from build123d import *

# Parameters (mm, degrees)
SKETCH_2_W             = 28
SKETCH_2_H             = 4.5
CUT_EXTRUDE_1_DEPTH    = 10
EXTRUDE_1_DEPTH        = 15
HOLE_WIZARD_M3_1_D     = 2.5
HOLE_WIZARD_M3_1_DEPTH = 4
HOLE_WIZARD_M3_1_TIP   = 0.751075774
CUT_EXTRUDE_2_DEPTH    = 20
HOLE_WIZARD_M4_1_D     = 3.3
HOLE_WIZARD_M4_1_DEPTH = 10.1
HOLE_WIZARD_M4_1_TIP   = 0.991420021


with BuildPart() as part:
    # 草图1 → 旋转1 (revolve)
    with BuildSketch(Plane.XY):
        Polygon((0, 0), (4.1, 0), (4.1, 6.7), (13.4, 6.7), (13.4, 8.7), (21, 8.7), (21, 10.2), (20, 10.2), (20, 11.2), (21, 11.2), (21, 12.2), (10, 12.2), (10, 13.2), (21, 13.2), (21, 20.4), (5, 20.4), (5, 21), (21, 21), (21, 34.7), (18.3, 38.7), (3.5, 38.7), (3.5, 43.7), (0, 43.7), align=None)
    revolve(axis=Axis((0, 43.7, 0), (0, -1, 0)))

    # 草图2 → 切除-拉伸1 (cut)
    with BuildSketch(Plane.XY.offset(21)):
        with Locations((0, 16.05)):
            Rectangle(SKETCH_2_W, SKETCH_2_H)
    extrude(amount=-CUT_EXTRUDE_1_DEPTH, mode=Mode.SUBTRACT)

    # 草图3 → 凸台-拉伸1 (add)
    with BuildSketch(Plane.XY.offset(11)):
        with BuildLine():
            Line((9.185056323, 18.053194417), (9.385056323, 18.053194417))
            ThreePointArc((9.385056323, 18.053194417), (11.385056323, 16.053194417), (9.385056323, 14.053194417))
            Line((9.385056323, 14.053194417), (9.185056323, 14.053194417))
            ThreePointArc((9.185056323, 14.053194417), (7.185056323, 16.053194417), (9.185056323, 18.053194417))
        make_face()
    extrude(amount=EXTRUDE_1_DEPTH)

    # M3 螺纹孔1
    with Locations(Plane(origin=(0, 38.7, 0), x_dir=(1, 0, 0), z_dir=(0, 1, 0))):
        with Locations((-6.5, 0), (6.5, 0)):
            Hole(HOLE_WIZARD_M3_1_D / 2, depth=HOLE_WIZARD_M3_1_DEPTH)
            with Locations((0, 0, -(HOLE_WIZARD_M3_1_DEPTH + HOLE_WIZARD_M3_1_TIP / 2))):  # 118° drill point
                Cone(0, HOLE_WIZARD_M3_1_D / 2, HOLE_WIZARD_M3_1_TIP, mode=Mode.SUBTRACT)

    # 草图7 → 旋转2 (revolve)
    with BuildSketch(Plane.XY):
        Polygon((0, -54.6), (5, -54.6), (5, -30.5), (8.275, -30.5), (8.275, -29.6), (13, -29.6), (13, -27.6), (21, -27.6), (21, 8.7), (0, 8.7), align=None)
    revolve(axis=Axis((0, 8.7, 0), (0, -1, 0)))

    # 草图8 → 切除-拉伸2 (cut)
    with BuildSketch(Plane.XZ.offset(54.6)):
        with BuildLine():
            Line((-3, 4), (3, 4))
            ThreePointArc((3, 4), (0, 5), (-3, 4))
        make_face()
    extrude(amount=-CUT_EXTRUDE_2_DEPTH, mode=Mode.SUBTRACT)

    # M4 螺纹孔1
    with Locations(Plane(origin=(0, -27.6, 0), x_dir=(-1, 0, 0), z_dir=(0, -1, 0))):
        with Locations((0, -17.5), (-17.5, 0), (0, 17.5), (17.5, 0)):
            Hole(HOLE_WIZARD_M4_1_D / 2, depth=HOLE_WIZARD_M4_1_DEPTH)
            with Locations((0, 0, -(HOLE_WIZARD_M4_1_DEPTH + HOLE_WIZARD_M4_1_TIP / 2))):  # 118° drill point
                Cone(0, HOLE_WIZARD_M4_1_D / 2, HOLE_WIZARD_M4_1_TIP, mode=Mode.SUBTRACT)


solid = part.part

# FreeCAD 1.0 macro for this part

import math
import FreeCAD as App
import Part
import Sketcher

V = App.Vector
Q = App.Units.Quantity

doc = App.newDocument("Part")
body = doc.addObject("PartDesign::Body", "Body")

# Sketch on XY plane
sketch1 = body.newObject("Sketcher::SketchObject", "Sketch")
sketch1.AttachmentSupport = (doc.getObject("XY_Plane"), [""])
sketch1.MapMode = "FlatFace"
sketch1.addGeometry(Part.LineSegment(V(0, 0, 0), V(4.1, 0, 0)), False)
sketch1.addGeometry(Part.LineSegment(V(4.1, 0, 0), V(4.1, 6.7, 0)), False)
sketch1.addGeometry(Part.LineSegment(V(4.1, 6.7, 0), V(13.4, 6.7, 0)), False)
sketch1.addGeometry(Part.LineSegment(V(13.4, 6.7, 0), V(13.4, 8.7, 0)), False)
sketch1.addGeometry(Part.LineSegment(V(13.4, 8.7, 0), V(21, 8.7, 0)), False)
sketch1.addGeometry(Part.LineSegment(V(21, 8.7, 0), V(21, 10.2, 0)), False)
sketch1.addGeometry(Part.LineSegment(V(21, 10.2, 0), V(20, 10.2, 0)), False)
sketch1.addGeometry(Part.LineSegment(V(20, 10.2, 0), V(20, 11.2, 0)), False)
sketch1.addGeometry(Part.LineSegment(V(20, 11.2, 0), V(21, 11.2, 0)), False)
sketch1.addGeometry(Part.LineSegment(V(21, 11.2, 0), V(21, 12.2, 0)), False)
sketch1.addGeometry(Part.LineSegment(V(21, 12.2, 0), V(10, 12.2, 0)), False)
sketch1.addGeometry(Part.LineSegment(V(10, 12.2, 0), V(10, 13.2, 0)), False)
sketch1.addGeometry(Part.LineSegment(V(10, 13.2, 0), V(21, 13.2, 0)), False)
sketch1.addGeometry(Part.LineSegment(V(21, 13.2, 0), V(21, 20.4, 0)), False)
sketch1.addGeometry(Part.LineSegment(V(21, 20.4, 0), V(5, 20.4, 0)), False)
sketch1.addGeometry(Part.LineSegment(V(5, 20.4, 0), V(5, 21, 0)), False)
sketch1.addGeometry(Part.LineSegment(V(5, 21, 0), V(21, 21, 0)), False)
sketch1.addGeometry(Part.LineSegment(V(21, 21, 0), V(21, 34.7, 0)), False)
sketch1.addGeometry(Part.LineSegment(V(21, 34.7, 0), V(18.3, 38.7, 0)), False)
sketch1.addGeometry(Part.LineSegment(V(18.3, 38.7, 0), V(3.5, 38.7, 0)), False)
sketch1.addGeometry(Part.LineSegment(V(3.5, 38.7, 0), V(3.5, 43.7, 0)), False)
sketch1.addGeometry(Part.LineSegment(V(3.5, 43.7, 0), V(0, 43.7, 0)), False)
sketch1.addGeometry(Part.LineSegment(V(0, 43.7, 0), V(0, 0, 0)), False)
sketch1.addConstraint(Sketcher.Constraint("Coincident", 0, 2, 1, 1))
sketch1.addConstraint(Sketcher.Constraint("Coincident", 1, 2, 2, 1))
sketch1.addConstraint(Sketcher.Constraint("Coincident", 2, 2, 3, 1))
sketch1.addConstraint(Sketcher.Constraint("Coincident", 3, 2, 4, 1))
sketch1.addConstraint(Sketcher.Constraint("Coincident", 4, 2, 5, 1))
sketch1.addConstraint(Sketcher.Constraint("Coincident", 5, 2, 6, 1))
sketch1.addConstraint(Sketcher.Constraint("Coincident", 6, 2, 7, 1))
sketch1.addConstraint(Sketcher.Constraint("Coincident", 7, 2, 8, 1))
sketch1.addConstraint(Sketcher.Constraint("Coincident", 8, 2, 9, 1))
sketch1.addConstraint(Sketcher.Constraint("Coincident", 9, 2, 10, 1))
sketch1.addConstraint(Sketcher.Constraint("Coincident", 10, 2, 11, 1))
sketch1.addConstraint(Sketcher.Constraint("Coincident", 11, 2, 12, 1))
sketch1.addConstraint(Sketcher.Constraint("Coincident", 12, 2, 13, 1))
sketch1.addConstraint(Sketcher.Constraint("Coincident", 13, 2, 14, 1))
sketch1.addConstraint(Sketcher.Constraint("Coincident", 14, 2, 15, 1))
sketch1.addConstraint(Sketcher.Constraint("Coincident", 15, 2, 16, 1))
sketch1.addConstraint(Sketcher.Constraint("Coincident", 16, 2, 17, 1))
sketch1.addConstraint(Sketcher.Constraint("Coincident", 17, 2, 18, 1))
sketch1.addConstraint(Sketcher.Constraint("Coincident", 18, 2, 19, 1))
sketch1.addConstraint(Sketcher.Constraint("Coincident", 19, 2, 20, 1))
sketch1.addConstraint(Sketcher.Constraint("Coincident", 20, 2, 21, 1))
sketch1.addConstraint(Sketcher.Constraint("Coincident", 21, 2, 22, 1))
sketch1.addConstraint(Sketcher.Constraint("Coincident", 22, 2, 0, 1))
sketch1.addConstraint(Sketcher.Constraint("Horizontal", 0))
sketch1.addConstraint(Sketcher.Constraint("Vertical", 1))
sketch1.addConstraint(Sketcher.Constraint("Horizontal", 2))
sketch1.addConstraint(Sketcher.Constraint("Vertical", 3))
sketch1.addConstraint(Sketcher.Constraint("Horizontal", 4))
sketch1.addConstraint(Sketcher.Constraint("Vertical", 5))
sketch1.addConstraint(Sketcher.Constraint("Horizontal", 6))
sketch1.addConstraint(Sketcher.Constraint("Vertical", 7))
sketch1.addConstraint(Sketcher.Constraint("Horizontal", 8))
sketch1.addConstraint(Sketcher.Constraint("Vertical", 9))
sketch1.addConstraint(Sketcher.Constraint("Horizontal", 10))
sketch1.addConstraint(Sketcher.Constraint("Vertical", 11))
sketch1.addConstraint(Sketcher.Constraint("Horizontal", 12))
sketch1.addConstraint(Sketcher.Constraint("Vertical", 13))
sketch1.addConstraint(Sketcher.Constraint("Horizontal", 14))
sketch1.addConstraint(Sketcher.Constraint("Vertical", 15))
sketch1.addConstraint(Sketcher.Constraint("Horizontal", 16))
sketch1.addConstraint(Sketcher.Constraint("Vertical", 17))
sketch1.addConstraint(Sketcher.Constraint("Horizontal", 19))
sketch1.addConstraint(Sketcher.Constraint("Vertical", 20))
sketch1.addConstraint(Sketcher.Constraint("Horizontal", 21))
sketch1.addConstraint(Sketcher.Constraint("Vertical", 22))
sketch1.addConstraint(Sketcher.Constraint("Coincident", 22, 2, -1, 1))
sketch1.addConstraint(Sketcher.Constraint("Vertical", 5, 2, 8, 2))
sketch1.addConstraint(Sketcher.Constraint("Vertical", 9, 2, 12, 2))
sketch1.addConstraint(Sketcher.Constraint("Vertical", 13, 2, 16, 2))
sketch1.addConstraint(Sketcher.Constraint("Equal", 8, 7))
sketch1.addConstraint(Sketcher.Constraint("Equal", 7, 9))
sketch1.addConstraint(Sketcher.Constraint("Equal", 9, 11))
sketch1.addConstraint(Sketcher.Constraint("DistanceX", 6, 2, 6, 1, Q("1 mm")))
sketch1.addConstraint(Sketcher.Constraint("DistanceX", 10, 2, 10, 1, Q("11 mm")))
sketch1.addConstraint(Sketcher.Constraint("DistanceX", 14, 2, 14, 1, Q("16 mm")))
sketch1.addConstraint(Sketcher.Constraint("DistanceY", 3, 1, 3, 2, Q("2 mm")))
sketch1.addConstraint(Sketcher.Constraint("DistanceY", 20, 1, 20, 2, Q("5 mm")))
sketch1.addConstraint(Sketcher.Constraint("DistanceX", 0, 1, 0, 2, Q("4.1 mm")))
sketch1.addConstraint(Sketcher.Constraint("DistanceX", 2, 1, 2, 2, Q("9.3 mm")))
sketch1.addConstraint(Sketcher.Constraint("DistanceX", 4, 1, 4, 2, Q("7.6 mm")))
sketch1.addConstraint(Sketcher.Constraint("DistanceX", 19, 2, 19, 1, Q("14.8 mm")))
sketch1.addConstraint(Sketcher.Constraint("DistanceX", 21, 2, 21, 1, Q("3.5 mm")))
sketch1.addConstraint(Sketcher.Constraint("DistanceY", 1, 1, 1, 2, Q("6.7 mm")))
sketch1.addConstraint(Sketcher.Constraint("DistanceY", 5, 1, 5, 2, Q("1.5 mm")))
sketch1.addConstraint(Sketcher.Constraint("DistanceY", 13, 1, 13, 2, Q("7.2 mm")))
sketch1.addConstraint(Sketcher.Constraint("DistanceY", 15, 1, 15, 2, Q("0.6 mm")))
sketch1.addConstraint(Sketcher.Constraint("DistanceY", 17, 1, 17, 2, Q("13.7 mm")))
sketch1.addConstraint(Sketcher.Constraint("DistanceY", 22, 2, 22, 1, Q("43.7 mm")))
revolution = body.newObject("PartDesign::Revolution", "Revolution")
revolution.Profile = sketch1
revolution.ReferenceAxis = (sketch1, ["V_Axis"])
revolution.Angle = 360

# Sketch on XY plane
sketch2 = body.newObject("Sketcher::SketchObject", "Sketch001")
sketch2.AttachmentSupport = (doc.getObject("XY_Plane"), [""])
sketch2.MapMode = "FlatFace"
sketch2.AttachmentOffset = App.Placement(V(0, 0, 21), App.Rotation())
sketch2.addGeometry(Part.LineSegment(V(-14, 18.3, 0), V(-14, 13.8, 0)), False)
sketch2.addGeometry(Part.LineSegment(V(-14, 13.8, 0), V(14, 13.8, 0)), False)
sketch2.addGeometry(Part.LineSegment(V(14, 13.8, 0), V(14, 18.3, 0)), False)
sketch2.addGeometry(Part.LineSegment(V(14, 18.3, 0), V(-14, 18.3, 0)), False)
sketch2.addConstraint(Sketcher.Constraint("Coincident", 0, 2, 1, 1))
sketch2.addConstraint(Sketcher.Constraint("Coincident", 1, 2, 2, 1))
sketch2.addConstraint(Sketcher.Constraint("Coincident", 2, 2, 3, 1))
sketch2.addConstraint(Sketcher.Constraint("Coincident", 3, 2, 0, 1))
sketch2.addConstraint(Sketcher.Constraint("Vertical", 0))
sketch2.addConstraint(Sketcher.Constraint("Horizontal", 1))
sketch2.addConstraint(Sketcher.Constraint("Vertical", 2))
sketch2.addConstraint(Sketcher.Constraint("Horizontal", 3))
sketch2.addConstraint(Sketcher.Constraint("DistanceX", 1, 1, 1, 2, Q("28 mm")))
sketch2.addConstraint(Sketcher.Constraint("DistanceY", 0, 2, 0, 1, Q("4.5 mm")))
sketch2.addConstraint(Sketcher.Constraint("DistanceX", 0, 2, -1, 1, Q("14 mm")))
sketch2.addConstraint(Sketcher.Constraint("DistanceY", -1, 1, 0, 2, Q("13.8 mm")))
pocket1 = body.newObject("PartDesign::Pocket", "Pocket")
pocket1.Profile = sketch2
pocket1.Length = 10

# Sketch on XY plane
sketch3 = body.newObject("Sketcher::SketchObject", "Sketch002")
sketch3.AttachmentSupport = (doc.getObject("XY_Plane"), [""])
sketch3.MapMode = "FlatFace"
sketch3.AttachmentOffset = App.Placement(V(0, 0, 11), App.Rotation())
sketch3.addGeometry(Part.LineSegment(V(9.39, 18.05, 0), V(9.19, 18.05, 0)), False)
sketch3.addGeometry(Part.ArcOfCircle(Part.Circle(V(9.19, 16.05, 0), V(0, 0, 1), 2), math.radians(90), math.radians(270)), False)
sketch3.addGeometry(Part.LineSegment(V(9.19, 14.05, 0), V(9.39, 14.05, 0)), False)
sketch3.addGeometry(Part.ArcOfCircle(Part.Circle(V(9.39, 16.05, 0), V(0, 0, 1), 2), math.radians(-90), math.radians(90)), False)
sketch3.addConstraint(Sketcher.Constraint("Tangent", 0, 2, 1, 1))
sketch3.addConstraint(Sketcher.Constraint("Tangent", 1, 2, 2, 1))
sketch3.addConstraint(Sketcher.Constraint("Tangent", 2, 2, 3, 1))
sketch3.addConstraint(Sketcher.Constraint("Tangent", 3, 2, 0, 1))
sketch3.addConstraint(Sketcher.Constraint("Horizontal", 0))
sketch3.addConstraint(Sketcher.Constraint("Horizontal", 2))
sketch3.addConstraint(Sketcher.Constraint("Radius", 1, Q("2 mm")))
sketch3.addConstraint(Sketcher.Constraint("DistanceX", 0, 2, 0, 1, Q("0.2 mm")))
sketch3.addConstraint(Sketcher.Constraint("DistanceX", -1, 1, 1, 3, Q("9.185056 mm")))
sketch3.addConstraint(Sketcher.Constraint("DistanceY", -1, 1, 1, 3, Q("16.053194 mm")))
pad1 = body.newObject("PartDesign::Pad", "Pad")
pad1.Profile = sketch3
pad1.Length = 15

# Sketch on XZ plane
sketch4 = body.newObject("Sketcher::SketchObject", "Sketch003")
sketch4.AttachmentSupport = (doc.getObject("XZ_Plane"), [""])
sketch4.MapMode = "FlatFace"
sketch4.AttachmentOffset = App.Placement(V(0, 0, -38.7), App.Rotation())
sketch4.addGeometry(Part.Circle(V(-6.5, 0, 0), V(0, 0, 1), 1.2), False)
sketch4.addGeometry(Part.Circle(V(6.5, 0, 0), V(0, 0, 1), 1.2), False)
sketch4.addConstraint(Sketcher.Constraint("Equal", 0, 1))
sketch4.addConstraint(Sketcher.Constraint("Symmetric", 0, 3, 1, 3, -1, 1))
sketch4.addConstraint(Sketcher.Constraint("PointOnObject", 0, 3, -1))
sketch4.addConstraint(Sketcher.Constraint("Diameter", 0, Q("2.5 mm")))
sketch4.addConstraint(Sketcher.Constraint("DistanceX", 0, 3, 1, 3, Q("13 mm")))
doc.recompute()
hole = body.newObject("PartDesign::Hole", "Hole")
hole.Profile = sketch4
hole.ThreadType = "None"
hole.Diameter = 2.5
hole.DepthType = "Dimension"
hole.Depth = 4
hole.DrillPoint = "Angled"
hole.DrillPointAngle = 118
hole.Reversed = True

# Sketch on XY plane
sketch5 = body.newObject("Sketcher::SketchObject", "Sketch004")
sketch5.AttachmentSupport = (doc.getObject("XY_Plane"), [""])
sketch5.MapMode = "FlatFace"
sketch5.addGeometry(Part.LineSegment(V(0, -54.6, 0), V(5, -54.6, 0)), False)
sketch5.addGeometry(Part.LineSegment(V(5, -54.6, 0), V(5, -30.5, 0)), False)
sketch5.addGeometry(Part.LineSegment(V(5, -30.5, 0), V(8.3, -30.5, 0)), False)
sketch5.addGeometry(Part.LineSegment(V(8.3, -30.5, 0), V(8.3, -29.6, 0)), False)
sketch5.addGeometry(Part.LineSegment(V(8.3, -29.6, 0), V(13, -29.6, 0)), False)
sketch5.addGeometry(Part.LineSegment(V(13, -29.6, 0), V(13, -27.6, 0)), False)
sketch5.addGeometry(Part.LineSegment(V(13, -27.6, 0), V(21, -27.6, 0)), False)
sketch5.addGeometry(Part.LineSegment(V(21, -27.6, 0), V(21, 8.7, 0)), False)
sketch5.addGeometry(Part.LineSegment(V(21, 8.7, 0), V(0, 8.7, 0)), False)
sketch5.addGeometry(Part.LineSegment(V(0, 8.7, 0), V(0, -54.6, 0)), False)
sketch5.addConstraint(Sketcher.Constraint("Coincident", 0, 2, 1, 1))
sketch5.addConstraint(Sketcher.Constraint("Coincident", 1, 2, 2, 1))
sketch5.addConstraint(Sketcher.Constraint("Coincident", 2, 2, 3, 1))
sketch5.addConstraint(Sketcher.Constraint("Coincident", 3, 2, 4, 1))
sketch5.addConstraint(Sketcher.Constraint("Coincident", 4, 2, 5, 1))
sketch5.addConstraint(Sketcher.Constraint("Coincident", 5, 2, 6, 1))
sketch5.addConstraint(Sketcher.Constraint("Coincident", 6, 2, 7, 1))
sketch5.addConstraint(Sketcher.Constraint("Coincident", 7, 2, 8, 1))
sketch5.addConstraint(Sketcher.Constraint("Coincident", 8, 2, 9, 1))
sketch5.addConstraint(Sketcher.Constraint("Coincident", 9, 2, 0, 1))
sketch5.addConstraint(Sketcher.Constraint("Horizontal", 0))
sketch5.addConstraint(Sketcher.Constraint("Vertical", 1))
sketch5.addConstraint(Sketcher.Constraint("Horizontal", 2))
sketch5.addConstraint(Sketcher.Constraint("Vertical", 3))
sketch5.addConstraint(Sketcher.Constraint("Horizontal", 4))
sketch5.addConstraint(Sketcher.Constraint("Vertical", 5))
sketch5.addConstraint(Sketcher.Constraint("Horizontal", 6))
sketch5.addConstraint(Sketcher.Constraint("Vertical", 7))
sketch5.addConstraint(Sketcher.Constraint("Horizontal", 8))
sketch5.addConstraint(Sketcher.Constraint("Vertical", 9))
sketch5.addConstraint(Sketcher.Constraint("PointOnObject", 8, 2, -2))
sketch5.addConstraint(Sketcher.Constraint("DistanceX", 0, 1, 0, 2, Q("5 mm")))
sketch5.addConstraint(Sketcher.Constraint("DistanceX", 6, 1, 6, 2, Q("8 mm")))
sketch5.addConstraint(Sketcher.Constraint("DistanceX", 8, 2, 8, 1, Q("21 mm")))
sketch5.addConstraint(Sketcher.Constraint("DistanceY", 5, 1, 5, 2, Q("2 mm")))
sketch5.addConstraint(Sketcher.Constraint("DistanceY", 1, 1, 1, 2, Q("24.1 mm")))
sketch5.addConstraint(Sketcher.Constraint("DistanceY", 3, 1, 3, 2, Q("0.9 mm")))
sketch5.addConstraint(Sketcher.Constraint("DistanceY", 7, 1, 7, 2, Q("36.3 mm")))
sketch5.addConstraint(Sketcher.Constraint("DistanceY", 0, 2, -1, 1, Q("54.6 mm")))
sketch5.addConstraint(Sketcher.Constraint("DistanceX", 2, 1, 2, 2, Q("3.275 mm")))
revolution2 = body.newObject("PartDesign::Revolution", "Revolution001")
revolution2.Profile = sketch5
revolution2.ReferenceAxis = (sketch5, ["V_Axis"])
revolution2.Angle = 360

# Sketch on XZ plane
sketch6 = body.newObject("Sketcher::SketchObject", "Sketch005")
sketch6.AttachmentSupport = (doc.getObject("XZ_Plane"), [""])
sketch6.MapMode = "FlatFace"
sketch6.AttachmentOffset = App.Placement(V(0, 0, 54.6), App.Rotation())
sketch6.addGeometry(Part.LineSegment(V(-3, 4, 0), V(3, 4, 0)), False)
sketch6.addGeometry(Part.ArcOfCircle(Part.Circle(V(0, 0, 0), V(0, 0, 1), 5), math.radians(53), math.radians(127)), False)
sketch6.addConstraint(Sketcher.Constraint("Coincident", 0, 1, 1, 2))
sketch6.addConstraint(Sketcher.Constraint("Coincident", 1, 1, 0, 2))
sketch6.addConstraint(Sketcher.Constraint("Horizontal", 0))
sketch6.addConstraint(Sketcher.Constraint("Coincident", 1, 3, -1, 1))
sketch6.addConstraint(Sketcher.Constraint("Radius", 1, Q("5 mm")))
sketch6.addConstraint(Sketcher.Constraint("DistanceX", 0, 1, 0, 2, Q("6 mm")))
pocket2 = body.newObject("PartDesign::Pocket", "Pocket001")
pocket2.Profile = sketch6
pocket2.Length = 20

# Sketch on XZ plane
sketch7 = body.newObject("Sketcher::SketchObject", "Sketch006")
sketch7.AttachmentSupport = (doc.getObject("XZ_Plane"), [""])
sketch7.MapMode = "FlatFace"
sketch7.AttachmentOffset = App.Placement(V(0, 0, 27.6), App.Rotation())
sketch7.addGeometry(Part.Circle(V(0, 17.5, 0), V(0, 0, 1), 1.6), False)
sketch7.addGeometry(Part.Circle(V(17.5, 0, 0), V(0, 0, 1), 1.6), False)
sketch7.addGeometry(Part.Circle(V(0, -17.5, 0), V(0, 0, 1), 1.6), False)
sketch7.addGeometry(Part.Circle(V(-17.5, 0, 0), V(0, 0, 1), 1.6), False)
sketch7.addConstraint(Sketcher.Constraint("Equal", 0, 1))
sketch7.addConstraint(Sketcher.Constraint("Equal", 1, 2))
sketch7.addConstraint(Sketcher.Constraint("Equal", 2, 3))
sketch7.addConstraint(Sketcher.Constraint("Symmetric", 0, 3, 2, 3, -1, 1))
sketch7.addConstraint(Sketcher.Constraint("Symmetric", 1, 3, 3, 3, -1, 1))
sketch7.addConstraint(Sketcher.Constraint("PointOnObject", 0, 3, -2))
sketch7.addConstraint(Sketcher.Constraint("PointOnObject", 1, 3, -1))
sketch7.addConstraint(Sketcher.Constraint("Diameter", 0, Q("3.3 mm")))
sketch7.addConstraint(Sketcher.Constraint("DistanceY", 2, 3, 0, 3, Q("35 mm")))
sketch7.addConstraint(Sketcher.Constraint("DistanceX", 3, 3, 1, 3, Q("35 mm")))
doc.recompute()
hole2 = body.newObject("PartDesign::Hole", "Hole001")
hole2.Profile = sketch7
hole2.ThreadType = "None"
hole2.Diameter = 3.3
hole2.DepthType = "Dimension"
hole2.Depth = 10.1
hole2.DrillPoint = "Angled"
hole2.DrillPointAngle = 118

doc.recompute()
